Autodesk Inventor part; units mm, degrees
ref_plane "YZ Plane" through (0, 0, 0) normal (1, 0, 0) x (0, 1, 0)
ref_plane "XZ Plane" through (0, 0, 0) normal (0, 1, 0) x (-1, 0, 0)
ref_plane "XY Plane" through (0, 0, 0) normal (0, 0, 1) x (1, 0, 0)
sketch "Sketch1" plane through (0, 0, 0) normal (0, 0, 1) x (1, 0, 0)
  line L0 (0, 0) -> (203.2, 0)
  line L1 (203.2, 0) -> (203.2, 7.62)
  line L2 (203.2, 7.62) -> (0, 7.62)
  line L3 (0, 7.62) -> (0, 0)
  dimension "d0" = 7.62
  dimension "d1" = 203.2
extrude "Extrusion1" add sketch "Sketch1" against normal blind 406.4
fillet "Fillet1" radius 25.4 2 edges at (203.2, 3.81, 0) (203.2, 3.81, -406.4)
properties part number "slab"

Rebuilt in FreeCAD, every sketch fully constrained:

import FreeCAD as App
import Part
import Sketcher

V = App.Vector
Q = App.Units.Quantity


def edges_at(feature, points):
    """Names of the edges that pass closest to the given points."""
    edges = feature.Shape.Edges
    near = lambda p: min(range(len(edges)), key=lambda i: edges[i].distToShape(Part.Vertex(*p))[0])
    return sorted({f"Edge{near(p) + 1}" for p in points})


def add_polygon(sketch, points):
    """Adds a closed chain of lines whose ends are joined by coincident constraints."""
    first, n = sketch.GeometryCount, len(points)
    for a, b in zip(points, points[1:] + points[:1]):
        sketch.addGeometry(Part.LineSegment(App.Vector(*a, 0), App.Vector(*b, 0)), False)
    for i in range(n):
        sketch.addConstraint(Sketcher.Constraint("Coincident", first + i, 2, first + (i + 1) % n, 1))

doc = App.newDocument("Part")
body = doc.addObject("PartDesign::Body", "Body")

# Sketch on XY plane
sketch1 = body.newObject("Sketcher::SketchObject", "Sketch")
sketch1.AttachmentSupport = (doc.getObject("XY_Plane"), [""])
sketch1.MapMode = "FlatFace"
add_polygon(sketch1, [(0, 8), (0, 0), (203, 0), (203, 8)])  # lines 0-3
sketch1.addConstraint(Sketcher.Constraint("Vertical", 0))
sketch1.addConstraint(Sketcher.Constraint("Horizontal", 1))
sketch1.addConstraint(Sketcher.Constraint("Vertical", 2))
sketch1.addConstraint(Sketcher.Constraint("Horizontal", 3))
sketch1.addConstraint(Sketcher.Constraint("Coincident", 0, 2, -1, 1))
sketch1.addConstraint(Sketcher.Constraint("DistanceX", 1, 1, 1, 2, Q("8 in")))
sketch1.addConstraint(Sketcher.Constraint("DistanceY", 0, 2, 0, 1, Q("0.3 in")))
pad1 = body.newObject("PartDesign::Pad", "Pad")
pad1.Profile = sketch1
pad1.Length = Q("16 in")
pad1.Reversed = True
doc.recompute()

fillet = body.newObject("PartDesign::Fillet", "Fillet")
fillet.Base = (pad1, edges_at(pad1, [(203.2, 3.81, 0), (203.2, 3.81, -406.4)]))
fillet.Radius = Q("1 in")

doc.recompute()
